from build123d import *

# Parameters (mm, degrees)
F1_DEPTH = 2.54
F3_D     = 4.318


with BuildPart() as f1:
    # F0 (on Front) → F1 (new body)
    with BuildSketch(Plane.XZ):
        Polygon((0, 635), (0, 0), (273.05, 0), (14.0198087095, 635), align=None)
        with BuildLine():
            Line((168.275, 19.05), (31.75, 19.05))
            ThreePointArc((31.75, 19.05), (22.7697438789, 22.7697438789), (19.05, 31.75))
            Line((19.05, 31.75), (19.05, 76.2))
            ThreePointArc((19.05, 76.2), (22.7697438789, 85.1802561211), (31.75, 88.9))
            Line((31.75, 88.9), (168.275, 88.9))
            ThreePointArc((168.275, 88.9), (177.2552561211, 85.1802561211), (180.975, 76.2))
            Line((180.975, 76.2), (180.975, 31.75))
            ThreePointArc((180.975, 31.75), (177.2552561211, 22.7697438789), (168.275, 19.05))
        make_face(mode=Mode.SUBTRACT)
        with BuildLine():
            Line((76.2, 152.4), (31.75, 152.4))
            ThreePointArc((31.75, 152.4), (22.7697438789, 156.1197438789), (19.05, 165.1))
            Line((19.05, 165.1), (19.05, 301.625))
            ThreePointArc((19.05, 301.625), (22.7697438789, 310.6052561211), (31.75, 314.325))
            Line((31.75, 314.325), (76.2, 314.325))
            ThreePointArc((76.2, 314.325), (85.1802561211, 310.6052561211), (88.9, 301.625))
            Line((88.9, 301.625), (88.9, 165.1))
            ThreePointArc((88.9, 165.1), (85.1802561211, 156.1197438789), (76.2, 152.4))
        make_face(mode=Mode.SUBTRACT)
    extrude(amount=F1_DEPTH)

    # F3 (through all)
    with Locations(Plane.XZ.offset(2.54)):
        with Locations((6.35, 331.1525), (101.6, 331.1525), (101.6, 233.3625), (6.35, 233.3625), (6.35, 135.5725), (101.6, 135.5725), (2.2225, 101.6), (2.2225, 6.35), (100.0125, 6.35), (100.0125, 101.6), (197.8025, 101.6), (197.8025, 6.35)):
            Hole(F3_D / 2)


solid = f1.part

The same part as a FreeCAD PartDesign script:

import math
import FreeCAD as App
import Part
import Sketcher
Q = App.Units.Quantity


def add_polygon(sketch, points):
    """Adds a closed chain of lines whose ends are joined by coincident constraints."""
    first, n = sketch.GeometryCount, len(points)
    for a, b in zip(points, points[1:] + points[:1]):
        sketch.addGeometry(Part.LineSegment(App.Vector(*a, 0), App.Vector(*b, 0)), False)
    for i in range(n):
        sketch.addConstraint(Sketcher.Constraint("Coincident", first + i, 2, first + (i + 1) % n, 1))

doc = App.newDocument("Part")
body = doc.addObject("PartDesign::Body", "Body")

# Sketch on XZ plane
sketch1 = doc.addObject("Sketcher::SketchObject", "Sketch")
body.addObject(sketch1)
sketch1.AttachmentSupport = (doc.XZ_Plane, [""])
sketch1.MapMode = "FlatFace"
add_polygon(sketch1, [(0, 635), (0, 0), (273, 0), (14, 635)])  # lines 0-3
sketch1.addGeometry(Part.ArcOfCircle(Part.Circle(App.Vector(168, 32, 0), App.Vector(0, 0, 1), 13), math.radians(-90), math.radians(0)), False)  # 4
sketch1.addGeometry(Part.LineSegment(App.Vector(168, 19, 0), App.Vector(32, 19, 0)), False)  # 5
sketch1.addGeometry(Part.ArcOfCircle(Part.Circle(App.Vector(32, 32, 0), App.Vector(0, 0, 1), 13), math.radians(180), math.radians(270)), False)  # 6
sketch1.addGeometry(Part.LineSegment(App.Vector(19, 32, 0), App.Vector(19, 76, 0)), False)  # 7
sketch1.addGeometry(Part.ArcOfCircle(Part.Circle(App.Vector(32, 76, 0), App.Vector(0, 0, 1), 13), math.radians(90), math.radians(180)), False)  # 8
sketch1.addGeometry(Part.LineSegment(App.Vector(32, 89, 0), App.Vector(168, 89, 0)), False)  # 9
sketch1.addGeometry(Part.ArcOfCircle(Part.Circle(App.Vector(168, 76, 0), App.Vector(0, 0, 1), 13), math.radians(0), math.radians(90)), False)  # 10
sketch1.addGeometry(Part.LineSegment(App.Vector(181, 76, 0), App.Vector(181, 32, 0)), False)  # 11
sketch1.addGeometry(Part.ArcOfCircle(Part.Circle(App.Vector(76, 165, 0), App.Vector(0, 0, 1), 13), math.radians(-90), math.radians(0)), False)  # 12
sketch1.addGeometry(Part.LineSegment(App.Vector(76, 152, 0), App.Vector(32, 152, 0)), False)  # 13
sketch1.addGeometry(Part.ArcOfCircle(Part.Circle(App.Vector(32, 165, 0), App.Vector(0, 0, 1), 13), math.radians(180), math.radians(270)), False)  # 14
sketch1.addGeometry(Part.LineSegment(App.Vector(19, 165, 0), App.Vector(19, 302, 0)), False)  # 15
sketch1.addGeometry(Part.ArcOfCircle(Part.Circle(App.Vector(32, 302, 0), App.Vector(0, 0, 1), 13), math.radians(90), math.radians(180)), False)  # 16
sketch1.addGeometry(Part.LineSegment(App.Vector(32, 314, 0), App.Vector(76, 314, 0)), False)  # 17
sketch1.addGeometry(Part.ArcOfCircle(Part.Circle(App.Vector(76, 302, 0), App.Vector(0, 0, 1), 13), math.radians(0), math.radians(90)), False)  # 18
sketch1.addGeometry(Part.LineSegment(App.Vector(89, 302, 0), App.Vector(89, 165, 0)), False)  # 19
sketch1.addConstraint(Sketcher.Constraint("Tangent", 4, 1, 5, 1))
sketch1.addConstraint(Sketcher.Constraint("Tangent", 5, 2, 6, 2))
sketch1.addConstraint(Sketcher.Constraint("Tangent", 6, 1, 7, 1))
sketch1.addConstraint(Sketcher.Constraint("Tangent", 7, 2, 8, 2))
sketch1.addConstraint(Sketcher.Constraint("Tangent", 8, 1, 9, 1))
sketch1.addConstraint(Sketcher.Constraint("Tangent", 9, 2, 10, 2))
sketch1.addConstraint(Sketcher.Constraint("Tangent", 10, 1, 11, 1))
sketch1.addConstraint(Sketcher.Constraint("Tangent", 11, 2, 4, 2))
sketch1.addConstraint(Sketcher.Constraint("Tangent", 12, 1, 13, 1))
sketch1.addConstraint(Sketcher.Constraint("Tangent", 13, 2, 14, 2))
sketch1.addConstraint(Sketcher.Constraint("Tangent", 14, 1, 15, 1))
sketch1.addConstraint(Sketcher.Constraint("Tangent", 15, 2, 16, 2))
sketch1.addConstraint(Sketcher.Constraint("Tangent", 16, 1, 17, 1))
sketch1.addConstraint(Sketcher.Constraint("Tangent", 17, 2, 18, 2))
sketch1.addConstraint(Sketcher.Constraint("Tangent", 18, 1, 19, 1))
sketch1.addConstraint(Sketcher.Constraint("Tangent", 19, 2, 12, 2))
sketch1.addConstraint(Sketcher.Constraint("Vertical", 0))
sketch1.addConstraint(Sketcher.Constraint("Horizontal", 1))
sketch1.addConstraint(Sketcher.Constraint("Horizontal", 3))
sketch1.addConstraint(Sketcher.Constraint("Horizontal", 5))
sketch1.addConstraint(Sketcher.Constraint("Vertical", 7))
sketch1.addConstraint(Sketcher.Constraint("Horizontal", 9))
sketch1.addConstraint(Sketcher.Constraint("Vertical", 11))
sketch1.addConstraint(Sketcher.Constraint("Horizontal", 13))
sketch1.addConstraint(Sketcher.Constraint("Vertical", 15))
sketch1.addConstraint(Sketcher.Constraint("Horizontal", 17))
sketch1.addConstraint(Sketcher.Constraint("Vertical", 19))
sketch1.addConstraint(Sketcher.Constraint("Coincident", 0, 2, -1, 1))
sketch1.addConstraint(Sketcher.Constraint("Equal", 4, 6))
sketch1.addConstraint(Sketcher.Constraint("Equal", 6, 8))
sketch1.addConstraint(Sketcher.Constraint("Equal", 8, 10))
sketch1.addConstraint(Sketcher.Constraint("Equal", 10, 12))
sketch1.addConstraint(Sketcher.Constraint("Equal", 12, 14))
sketch1.addConstraint(Sketcher.Constraint("Equal", 14, 16))
sketch1.addConstraint(Sketcher.Constraint("Equal", 16, 18))
sketch1.addConstraint(Sketcher.Constraint("Vertical", 8, 3, 14, 3))
sketch1.addConstraint(Sketcher.Constraint("Equal", 17, 7))
sketch1.addConstraint(Sketcher.Constraint("Equal", 9, 15))
sketch1.addConstraint(Sketcher.Constraint("Radius", 4, Q("0.5 in")))
sketch1.addConstraint(Sketcher.Constraint("DistanceY", 0, 2, 0, 1, Q("25 in")))
sketch1.addConstraint(Sketcher.Constraint("Distance", 2, Q("27 in")))
sketch1.addConstraint(Sketcher.Constraint("DistanceY", -1, 1, 8, 3, Q("3 in")))
sketch1.addConstraint(Sketcher.Constraint("DistanceX", -1, 1, 12, 3, Q("3 in")))
sketch1.addConstraint(Sketcher.Constraint("DistanceY", -1, 1, 12, 1, Q("6 in")))
sketch1.addConstraint(Sketcher.Constraint("DistanceX", 1, 1, 1, 2, Q("10.75 in")))
sketch1.addConstraint(Sketcher.Constraint("DistanceX", 13, 2, 13, 1, Q("1.75 in")))
sketch1.addConstraint(Sketcher.Constraint("DistanceX", 5, 2, 5, 1, Q("5.375 in")))
pad1 = doc.addObject("PartDesign::Pad", "Pad")
body.addObject(pad1)
pad1.Profile = sketch1
pad1.Length = Q("0.1 in")

# Sketch on XZ plane
sketch2 = doc.addObject("Sketcher::SketchObject", "Sketch001")
body.addObject(sketch2)
sketch2.AttachmentSupport = (doc.XZ_Plane, [""])
sketch2.MapMode = "FlatFace"
sketch2.AttachmentOffset = App.Placement(App.Vector(0, 0, 0.1 * 25.4), App.Rotation())
sketch2.addGeometry(Part.Circle(App.Vector(6.3, 331.2, 0), App.Vector(0, 0, 1), 2.2), False)
sketch2.addGeometry(Part.Circle(App.Vector(101.6, 331.2, 0), App.Vector(0, 0, 1), 2.2), False)
sketch2.addGeometry(Part.Circle(App.Vector(101.6, 233.4, 0), App.Vector(0, 0, 1), 2.2), False)
sketch2.addGeometry(Part.Circle(App.Vector(6.3, 233.4, 0), App.Vector(0, 0, 1), 2.2), False)
sketch2.addGeometry(Part.Circle(App.Vector(6.3, 135.6, 0), App.Vector(0, 0, 1), 2.2), False)
sketch2.addGeometry(Part.Circle(App.Vector(101.6, 135.6, 0), App.Vector(0, 0, 1), 2.2), False)
sketch2.addGeometry(Part.Circle(App.Vector(2.2, 101.6, 0), App.Vector(0, 0, 1), 2.2), False)
sketch2.addGeometry(Part.Circle(App.Vector(2.2, 6.3, 0), App.Vector(0, 0, 1), 2.2), False)
sketch2.addGeometry(Part.Circle(App.Vector(100, 6.3, 0), App.Vector(0, 0, 1), 2.2), False)
sketch2.addGeometry(Part.Circle(App.Vector(100, 101.6, 0), App.Vector(0, 0, 1), 2.2), False)
sketch2.addGeometry(Part.Circle(App.Vector(197.8, 101.6, 0), App.Vector(0, 0, 1), 2.2), False)
sketch2.addGeometry(Part.Circle(App.Vector(197.8, 6.3, 0), App.Vector(0, 0, 1), 2.2), False)
sketch2.addConstraint(Sketcher.Constraint("Equal", 0, 1))
sketch2.addConstraint(Sketcher.Constraint("Equal", 1, 2))
sketch2.addConstraint(Sketcher.Constraint("Equal", 2, 3))
sketch2.addConstraint(Sketcher.Constraint("Equal", 3, 4))
sketch2.addConstraint(Sketcher.Constraint("Equal", 4, 5))
sketch2.addConstraint(Sketcher.Constraint("Equal", 5, 6))
sketch2.addConstraint(Sketcher.Constraint("Equal", 6, 7))
sketch2.addConstraint(Sketcher.Constraint("Equal", 7, 8))
sketch2.addConstraint(Sketcher.Constraint("Equal", 8, 9))
sketch2.addConstraint(Sketcher.Constraint("Equal", 9, 10))
sketch2.addConstraint(Sketcher.Constraint("Equal", 10, 11))
sketch2.addConstraint(Sketcher.Constraint("Horizontal", 0, 3, 1, 3))
sketch2.addConstraint(Sketcher.Constraint("Horizontal", 2, 3, 3, 3))
sketch2.addConstraint(Sketcher.Constraint("Horizontal", 4, 3, 5, 3))
sketch2.addConstraint(Sketcher.Constraint("Horizontal", 7, 3, 8, 3))
sketch2.addConstraint(Sketcher.Constraint("Horizontal", 6, 3, 9, 3))
sketch2.addConstraint(Sketcher.Constraint("Horizontal", 9, 3, 10, 3))
sketch2.addConstraint(Sketcher.Constraint("Horizontal", 8, 3, 11, 3))
sketch2.addConstraint(Sketcher.Constraint("Vertical", 1, 3, 2, 3))
sketch2.addConstraint(Sketcher.Constraint("Vertical", 0, 3, 3, 3))
sketch2.addConstraint(Sketcher.Constraint("Vertical", 3, 3, 4, 3))
sketch2.addConstraint(Sketcher.Constraint("Vertical", 2, 3, 5, 3))
sketch2.addConstraint(Sketcher.Constraint("Vertical", 6, 3, 7, 3))
sketch2.addConstraint(Sketcher.Constraint("Vertical", 8, 3, 9, 3))
sketch2.addConstraint(Sketcher.Constraint("Vertical", 10, 3, 11, 3))
sketch2.addConstraint(Sketcher.Constraint("Diameter", 0, Q("0.17 in")))
sketch2.addConstraint(Sketcher.Constraint("DistanceX", -1, 1, 1, 3, Q("4 in")))
sketch2.addConstraint(Sketcher.Constraint("DistanceY", -1, 1, 6, 3, Q("4 in")))
sketch2.addConstraint(Sketcher.Constraint("DistanceY", 4, 3, 0, 3, Q("7.7 in")))
sketch2.addConstraint(Sketcher.Constraint("DistanceX", 7, 3, 11, 3, Q("7.7 in")))
sketch2.addConstraint(Sketcher.Constraint("DistanceX", -1, 1, 0, 3, Q("0.25 in")))
sketch2.addConstraint(Sketcher.Constraint("DistanceY", -1, 1, 7, 3, Q("0.25 in")))
sketch2.addConstraint(Sketcher.Constraint("DistanceY", 2, 3, 1, 3, Q("3.85 in")))
sketch2.addConstraint(Sketcher.Constraint("DistanceX", 7, 3, 8, 3, Q("3.85 in")))
sketch2.addConstraint(Sketcher.Constraint("DistanceY", -1, 1, 2, 3, Q("9.1875 in")))
sketch2.addConstraint(Sketcher.Constraint("DistanceX", -1, 1, 8, 3, Q("3.9375 in")))
doc.recompute()
hole = doc.addObject("PartDesign::Hole", "Hole")
body.addObject(hole)
hole.Profile = sketch2
hole.ThreadType = "None"
hole.Diameter = Q("0.17 in")
hole.DepthType = "ThroughAll"

doc.recompute()
